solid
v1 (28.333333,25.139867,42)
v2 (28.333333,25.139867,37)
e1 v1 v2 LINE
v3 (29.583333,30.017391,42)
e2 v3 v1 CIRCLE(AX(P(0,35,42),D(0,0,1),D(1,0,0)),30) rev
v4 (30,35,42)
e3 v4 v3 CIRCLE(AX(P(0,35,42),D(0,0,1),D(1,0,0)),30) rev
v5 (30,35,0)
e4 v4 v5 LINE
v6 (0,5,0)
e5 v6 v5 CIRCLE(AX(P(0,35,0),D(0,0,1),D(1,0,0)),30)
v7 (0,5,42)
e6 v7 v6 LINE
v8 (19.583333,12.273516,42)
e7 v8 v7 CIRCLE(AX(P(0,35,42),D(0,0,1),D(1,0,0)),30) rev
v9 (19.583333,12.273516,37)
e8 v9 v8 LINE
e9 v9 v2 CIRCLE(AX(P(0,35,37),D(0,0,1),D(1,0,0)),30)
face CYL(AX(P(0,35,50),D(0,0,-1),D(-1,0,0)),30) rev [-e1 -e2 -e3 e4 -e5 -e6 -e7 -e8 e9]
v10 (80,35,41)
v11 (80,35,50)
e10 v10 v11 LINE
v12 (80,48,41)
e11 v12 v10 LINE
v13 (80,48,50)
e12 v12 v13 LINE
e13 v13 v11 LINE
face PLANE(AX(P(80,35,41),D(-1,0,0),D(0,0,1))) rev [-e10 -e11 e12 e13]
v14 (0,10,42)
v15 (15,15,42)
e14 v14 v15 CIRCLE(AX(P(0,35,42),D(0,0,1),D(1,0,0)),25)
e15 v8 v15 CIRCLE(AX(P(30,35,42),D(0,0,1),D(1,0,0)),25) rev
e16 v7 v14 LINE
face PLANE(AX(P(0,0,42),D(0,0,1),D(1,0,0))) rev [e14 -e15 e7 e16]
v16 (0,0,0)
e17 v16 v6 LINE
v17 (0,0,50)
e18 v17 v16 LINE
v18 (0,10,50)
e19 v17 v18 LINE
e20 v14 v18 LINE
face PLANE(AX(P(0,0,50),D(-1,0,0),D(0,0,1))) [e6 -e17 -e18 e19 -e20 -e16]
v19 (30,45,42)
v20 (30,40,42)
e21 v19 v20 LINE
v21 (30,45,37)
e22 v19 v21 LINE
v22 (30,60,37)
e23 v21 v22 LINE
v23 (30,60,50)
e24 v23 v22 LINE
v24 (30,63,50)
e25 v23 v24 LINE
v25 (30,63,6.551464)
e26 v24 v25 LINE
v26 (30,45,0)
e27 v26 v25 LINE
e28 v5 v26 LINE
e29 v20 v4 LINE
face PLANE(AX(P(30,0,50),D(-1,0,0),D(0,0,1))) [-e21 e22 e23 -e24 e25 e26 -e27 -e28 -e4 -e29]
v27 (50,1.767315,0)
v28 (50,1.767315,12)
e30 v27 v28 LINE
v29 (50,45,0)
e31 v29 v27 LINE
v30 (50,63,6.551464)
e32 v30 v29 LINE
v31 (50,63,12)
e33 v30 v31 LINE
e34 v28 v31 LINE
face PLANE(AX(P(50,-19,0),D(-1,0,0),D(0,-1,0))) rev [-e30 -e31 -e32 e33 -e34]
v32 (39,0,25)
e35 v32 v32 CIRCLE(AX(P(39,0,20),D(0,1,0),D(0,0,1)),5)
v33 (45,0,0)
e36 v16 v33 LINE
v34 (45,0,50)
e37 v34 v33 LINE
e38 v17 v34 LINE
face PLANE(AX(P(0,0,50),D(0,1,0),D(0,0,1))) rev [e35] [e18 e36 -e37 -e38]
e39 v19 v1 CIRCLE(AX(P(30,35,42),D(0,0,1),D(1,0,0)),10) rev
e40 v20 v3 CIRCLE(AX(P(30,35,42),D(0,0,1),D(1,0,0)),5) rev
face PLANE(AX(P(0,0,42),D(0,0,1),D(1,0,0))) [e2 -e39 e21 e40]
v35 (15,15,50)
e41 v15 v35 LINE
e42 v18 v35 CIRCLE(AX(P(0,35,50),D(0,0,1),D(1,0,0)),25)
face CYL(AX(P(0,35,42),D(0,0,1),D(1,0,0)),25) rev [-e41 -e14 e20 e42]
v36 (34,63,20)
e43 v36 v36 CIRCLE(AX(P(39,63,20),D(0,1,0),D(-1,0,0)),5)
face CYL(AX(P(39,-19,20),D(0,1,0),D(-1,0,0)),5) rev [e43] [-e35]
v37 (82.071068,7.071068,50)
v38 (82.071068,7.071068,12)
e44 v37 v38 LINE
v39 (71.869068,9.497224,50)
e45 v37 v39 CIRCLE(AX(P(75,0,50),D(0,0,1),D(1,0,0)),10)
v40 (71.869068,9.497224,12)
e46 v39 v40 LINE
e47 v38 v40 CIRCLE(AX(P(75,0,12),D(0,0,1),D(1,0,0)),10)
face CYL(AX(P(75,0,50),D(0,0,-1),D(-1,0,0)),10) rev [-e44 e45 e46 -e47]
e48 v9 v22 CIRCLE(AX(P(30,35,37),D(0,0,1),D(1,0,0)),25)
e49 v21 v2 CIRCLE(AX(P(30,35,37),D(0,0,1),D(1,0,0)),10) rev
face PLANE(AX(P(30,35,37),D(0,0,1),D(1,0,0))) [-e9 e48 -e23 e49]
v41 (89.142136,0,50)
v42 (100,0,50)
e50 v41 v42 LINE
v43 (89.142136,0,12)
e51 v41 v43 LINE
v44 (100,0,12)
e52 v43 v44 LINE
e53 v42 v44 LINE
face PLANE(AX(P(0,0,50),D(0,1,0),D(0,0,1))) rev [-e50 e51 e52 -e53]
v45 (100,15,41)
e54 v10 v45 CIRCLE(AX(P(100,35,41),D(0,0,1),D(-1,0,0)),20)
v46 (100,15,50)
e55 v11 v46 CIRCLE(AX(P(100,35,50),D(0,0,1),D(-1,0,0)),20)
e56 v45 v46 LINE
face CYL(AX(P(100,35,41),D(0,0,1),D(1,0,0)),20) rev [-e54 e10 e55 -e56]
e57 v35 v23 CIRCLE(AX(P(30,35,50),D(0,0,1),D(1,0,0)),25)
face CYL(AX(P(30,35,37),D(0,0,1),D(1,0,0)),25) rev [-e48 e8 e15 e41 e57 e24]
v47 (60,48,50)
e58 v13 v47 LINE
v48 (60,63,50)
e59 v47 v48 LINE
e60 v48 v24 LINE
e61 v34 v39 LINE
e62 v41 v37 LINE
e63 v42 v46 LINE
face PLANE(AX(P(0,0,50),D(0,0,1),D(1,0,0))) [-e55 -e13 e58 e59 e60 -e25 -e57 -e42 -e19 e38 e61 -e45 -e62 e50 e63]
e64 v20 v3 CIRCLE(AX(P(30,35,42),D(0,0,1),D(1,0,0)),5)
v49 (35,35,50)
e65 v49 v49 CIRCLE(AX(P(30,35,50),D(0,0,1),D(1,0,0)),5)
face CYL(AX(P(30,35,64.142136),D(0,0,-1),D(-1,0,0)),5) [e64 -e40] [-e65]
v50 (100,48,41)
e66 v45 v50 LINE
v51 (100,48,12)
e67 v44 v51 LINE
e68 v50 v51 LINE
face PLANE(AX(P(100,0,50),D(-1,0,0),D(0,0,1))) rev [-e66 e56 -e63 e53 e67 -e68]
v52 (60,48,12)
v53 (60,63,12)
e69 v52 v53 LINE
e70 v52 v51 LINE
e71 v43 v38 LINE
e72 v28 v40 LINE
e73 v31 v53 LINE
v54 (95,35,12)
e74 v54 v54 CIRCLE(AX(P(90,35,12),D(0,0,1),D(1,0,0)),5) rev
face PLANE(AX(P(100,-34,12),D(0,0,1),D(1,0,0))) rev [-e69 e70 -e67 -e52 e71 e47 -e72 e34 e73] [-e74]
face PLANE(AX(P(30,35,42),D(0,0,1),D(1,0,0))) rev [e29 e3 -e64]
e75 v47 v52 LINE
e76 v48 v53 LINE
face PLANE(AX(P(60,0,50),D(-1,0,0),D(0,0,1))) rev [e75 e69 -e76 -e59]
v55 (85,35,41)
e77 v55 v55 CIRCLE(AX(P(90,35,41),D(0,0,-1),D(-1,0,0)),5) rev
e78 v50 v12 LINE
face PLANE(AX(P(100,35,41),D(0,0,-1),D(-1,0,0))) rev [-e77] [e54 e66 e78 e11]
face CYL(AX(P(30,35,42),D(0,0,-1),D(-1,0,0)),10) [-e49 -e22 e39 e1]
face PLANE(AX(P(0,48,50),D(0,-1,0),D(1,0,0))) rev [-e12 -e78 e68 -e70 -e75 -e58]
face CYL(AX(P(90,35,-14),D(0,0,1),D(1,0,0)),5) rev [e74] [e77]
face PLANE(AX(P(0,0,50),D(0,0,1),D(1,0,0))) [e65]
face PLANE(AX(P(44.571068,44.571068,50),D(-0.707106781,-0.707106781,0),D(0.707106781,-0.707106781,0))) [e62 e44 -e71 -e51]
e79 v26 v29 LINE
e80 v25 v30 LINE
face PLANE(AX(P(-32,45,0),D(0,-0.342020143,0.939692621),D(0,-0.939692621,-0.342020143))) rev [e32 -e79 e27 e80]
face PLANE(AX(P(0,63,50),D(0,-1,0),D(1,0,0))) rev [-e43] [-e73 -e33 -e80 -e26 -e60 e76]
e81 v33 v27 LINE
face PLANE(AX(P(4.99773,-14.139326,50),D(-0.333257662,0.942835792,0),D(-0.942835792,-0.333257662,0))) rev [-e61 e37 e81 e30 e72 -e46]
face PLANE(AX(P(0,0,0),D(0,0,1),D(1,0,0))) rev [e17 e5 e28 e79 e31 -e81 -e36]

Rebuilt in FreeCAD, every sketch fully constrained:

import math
import FreeCAD as App
import Part
import Sketcher

V = App.Vector
Q = App.Units.Quantity


def add_polygon(sketch, points):
    """Adds a closed chain of lines whose ends are joined by coincident constraints."""
    first, n = sketch.GeometryCount, len(points)
    for a, b in zip(points, points[1:] + points[:1]):
        sketch.addGeometry(Part.LineSegment(App.Vector(*a, 0), App.Vector(*b, 0)), False)
    for i in range(n):
        sketch.addConstraint(Sketcher.Constraint("Coincident", first + i, 2, first + (i + 1) % n, 1))

doc = App.newDocument("Part")
body = doc.addObject("PartDesign::Body", "Body")

# Sketch on XY plane
sketch1 = body.newObject("Sketcher::SketchObject", "Sketch")
sketch1.AttachmentSupport = (doc.getObject("XY_Plane"), [""])
sketch1.MapMode = "FlatFace"
sketch1.addGeometry([
    Part.LineSegment(V(0, 5, 0), V(0, 0, 0)),  # 0
    Part.LineSegment(V(0, 0, 0), V(45, 0, 0)),  # 1
    Part.LineSegment(V(45, 0, 0), V(71.869068, 9.497224, 0)),  # 2
    Part.ArcOfCircle(Part.Circle(V(75, 0, 0), V(0, 0, 1), 10), math.radians(45), math.radians(108.245741)),  # 3
    Part.LineSegment(V(82.071068, 7.071068, 0), V(89.142136, 0, 0)),  # 4
    Part.LineSegment(V(89.142136, 0, 0), V(100, 0, 0)),  # 5
    Part.LineSegment(V(100, 0, 0), V(100, 48, 0)),  # 6
    Part.LineSegment(V(100, 48, 0), V(60, 48, 0)),  # 7
    Part.LineSegment(V(60, 48, 0), V(60, 63, 0)),  # 8
    Part.LineSegment(V(60, 63, 0), V(30, 63, 0)),  # 9
    Part.LineSegment(V(30, 63, 0), V(30, 35, 0)),  # 10
    Part.ArcOfCircle(Part.Circle(V(0, 35, 0), V(0, 0, 1), 30), math.radians(-90), math.radians(0)),  # 11
], False)
sketch1.addConstraint([
    Sketcher.Constraint("Coincident", 0, 2, 1, 1),
    Sketcher.Constraint("Coincident", 1, 2, 2, 1),
    Sketcher.Constraint("Coincident", 2, 2, 3, 2),
    Sketcher.Constraint("Tangent", 3, 1, 4, 1),
    Sketcher.Constraint("Coincident", 4, 2, 5, 1),
    Sketcher.Constraint("Coincident", 5, 2, 6, 1),
    Sketcher.Constraint("Coincident", 6, 2, 7, 1),
    Sketcher.Constraint("Coincident", 7, 2, 8, 1),
    Sketcher.Constraint("Coincident", 8, 2, 9, 1),
    Sketcher.Constraint("Coincident", 9, 2, 10, 1),
    Sketcher.Constraint("Tangent", 10, 2, 11, 2),
    Sketcher.Constraint("Coincident", 11, 1, 0, 1),
    Sketcher.Constraint("Vertical", 0),
    Sketcher.Constraint("Horizontal", 1),
    Sketcher.Constraint("Horizontal", 5),
    Sketcher.Constraint("Vertical", 6),
    Sketcher.Constraint("Horizontal", 7),
    Sketcher.Constraint("Vertical", 8),
    Sketcher.Constraint("Horizontal", 9),
    Sketcher.Constraint("Vertical", 10),
    Sketcher.Constraint("Coincident", 0, 2, -1, 1),
    Sketcher.Constraint("PointOnObject", 3, 3, -1),
    Sketcher.Constraint("PointOnObject", 11, 3, -2),
    Sketcher.Constraint("PointOnObject", 4, 2, -1),
    Sketcher.Constraint("Radius", 3, 10.0),
    Sketcher.Constraint("Radius", 11, 30.0),
    Sketcher.Constraint("DistanceX", 1, 1, 1, 2, 45.0),
    Sketcher.Constraint("DistanceX", 7, 2, 7, 1, 40.0),
    Sketcher.Constraint("DistanceX", 9, 2, 9, 1, 30.0),
    Sketcher.Constraint("DistanceY", 0, 2, 0, 1, 5.0),
    Sketcher.Constraint("DistanceY", 6, 1, 6, 2, 48.0),
    Sketcher.Constraint("DistanceY", 8, 1, 8, 2, 15.0),
    Sketcher.Constraint("Angle", 4, Q("-45 deg")),
    Sketcher.Constraint("DistanceX", -1, 1, 3, 3, 75.0),
    Sketcher.Constraint("DistanceX", 2, 2, 3, 1, 10.202),
])
pad1 = body.newObject("PartDesign::Pad", "Pad")
pad1.Profile = sketch1
pad1.Length = 50

# Sketch on XY plane
sketch2 = body.newObject("Sketcher::SketchObject", "Sketch001")
sketch2.AttachmentSupport = (doc.getObject("XY_Plane"), [""])
sketch2.MapMode = "FlatFace"
sketch2.AttachmentOffset = App.Placement(V(0, 0, 50), App.Rotation())
sketch2.addGeometry(Part.Circle(V(90, 35, 0), V(0, 0, 1), 5), False)
sketch2.addConstraint([
    Sketcher.Constraint("Diameter", 0, 10.0),
    Sketcher.Constraint("DistanceX", -1, 1, 0, 3, 90.0),
    Sketcher.Constraint("DistanceY", -1, 1, 0, 3, 35.0),
])
pocket1 = body.newObject("PartDesign::Pocket", "Pocket")
pocket1.Profile = sketch2
pocket1.Length = 64

# Sketch on XY plane
sketch3 = body.newObject("Sketcher::SketchObject", "Sketch002")
sketch3.AttachmentSupport = (doc.getObject("XY_Plane"), [""])
sketch3.MapMode = "FlatFace"
sketch3.AttachmentOffset = App.Placement(V(0, 0, 50), App.Rotation())
sketch3.addGeometry([
    Part.LineSegment(V(100, 48, 0), V(80, 48, 0)),
    Part.LineSegment(V(80, 48, 0), V(80, 35, 0)),
    Part.ArcOfCircle(Part.Circle(V(100, 35, 0), V(0, 0, 1), 20), math.radians(180), math.radians(270)),
    Part.LineSegment(V(100, 15, 0), V(100, 48, 0)),
], False)
sketch3.addConstraint([
    Sketcher.Constraint("Coincident", 0, 2, 1, 1),
    Sketcher.Constraint("Tangent", 1, 2, 2, 1),
    Sketcher.Constraint("Coincident", 2, 2, 3, 1),
    Sketcher.Constraint("Coincident", 3, 2, 0, 1),
    Sketcher.Constraint("Horizontal", 0),
    Sketcher.Constraint("Vertical", 1),
    Sketcher.Constraint("Vertical", 3),
    Sketcher.Constraint("Radius", 2, 20.0),
    Sketcher.Constraint("DistanceX", 0, 2, 0, 1, 20.0),
    Sketcher.Constraint("DistanceY", 1, 2, 1, 1, 13.0),
    Sketcher.Constraint("DistanceX", -1, 1, 2, 3, 100.0),
    Sketcher.Constraint("DistanceY", -1, 1, 2, 3, 35.0),
])
pocket2 = body.newObject("PartDesign::Pocket", "Pocket001")
pocket2.Profile = sketch3
pocket2.Length = 9

# Sketch on XZ plane
sketch4 = body.newObject("Sketcher::SketchObject", "Sketch003")
sketch4.AttachmentSupport = (doc.getObject("XZ_Plane"), [""])
sketch4.MapMode = "FlatFace"
sketch4.AttachmentOffset = App.Placement(V(0, 0, -63), App.Rotation())
sketch4.addGeometry(Part.Circle(V(39, 20, 0), V(0, 0, 1), 5), False)
sketch4.addConstraint([
    Sketcher.Constraint("Diameter", 0, 10.0),
    Sketcher.Constraint("DistanceX", -1, 1, 0, 3, 39.0),
    Sketcher.Constraint("DistanceY", -1, 1, 0, 3, 20.0),
])
pocket3 = body.newObject("PartDesign::Pocket", "Pocket002")
pocket3.Profile = sketch4
pocket3.Length = 82
pocket3.Reversed = True

# Sketch on XZ plane
sketch5 = body.newObject("Sketcher::SketchObject", "Sketch004")
sketch5.AttachmentSupport = (doc.getObject("XZ_Plane"), [""])
sketch5.MapMode = "FlatFace"
sketch5.AttachmentOffset = App.Placement(V(0, 0, -48), App.Rotation())
add_polygon(sketch5, [(60, 0), (60, 12), (100, 12), (100, 0)])  # lines 0-3
sketch5.addConstraint([
    Sketcher.Constraint("Vertical", 0),
    Sketcher.Constraint("Horizontal", 1),
    Sketcher.Constraint("Vertical", 2),
    Sketcher.Constraint("Horizontal", 3),
    Sketcher.Constraint("PointOnObject", 2, 2, -1),
    Sketcher.Constraint("DistanceX", 1, 1, 1, 2, 40.0),
    Sketcher.Constraint("DistanceY", 0, 1, 0, 2, 12.0),
    Sketcher.Constraint("DistanceX", -1, 1, 0, 2, 60.0),
])
pocket4 = body.newObject("PartDesign::Pocket", "Pocket003")
pocket4.Profile = sketch5
pocket4.Length = 82
pocket4.Reversed = True

# Sketch on XZ plane
sketch6 = body.newObject("Sketcher::SketchObject", "Sketch005")
sketch6.AttachmentSupport = (doc.getObject("XZ_Plane"), [""])
sketch6.MapMode = "FlatFace"
sketch6.AttachmentOffset = App.Placement(V(0, 0, -63), App.Rotation())
add_polygon(sketch6, [(50, 0), (50, 12), (60, 12), (60, 0)])  # lines 0-3
sketch6.addConstraint([
    Sketcher.Constraint("Vertical", 0),
    Sketcher.Constraint("Horizontal", 1),
    Sketcher.Constraint("Vertical", 2),
    Sketcher.Constraint("Horizontal", 3),
    Sketcher.Constraint("PointOnObject", 2, 2, -1),
    Sketcher.Constraint("DistanceX", 1, 1, 1, 2, 10.0),
    Sketcher.Constraint("DistanceY", 0, 1, 0, 2, 12.0),
    Sketcher.Constraint("DistanceX", -1, 1, 0, 2, 50.0),
])
pocket5 = body.newObject("PartDesign::Pocket", "Pocket004")
pocket5.Profile = sketch6
pocket5.Length = 82
pocket5.Reversed = True

# Sketch on YZ plane
sketch7 = body.newObject("Sketcher::SketchObject", "Sketch006")
sketch7.AttachmentSupport = (doc.getObject("YZ_Plane"), [""])
sketch7.MapMode = "FlatFace"
sketch7.AttachmentOffset = App.Placement(V(0, 0, 50), App.Rotation())
add_polygon(sketch7, [(45, 0), (63, 0), (63, 6.551464)])  # lines 0-2
sketch7.addConstraint([
    Sketcher.Constraint("Horizontal", 0),
    Sketcher.Constraint("Vertical", 1),
    Sketcher.Constraint("PointOnObject", 0, 2, -1),
    Sketcher.Constraint("DistanceX", 0, 1, 0, 2, 18.0),
    Sketcher.Constraint("Angle", 2, Q("-160 deg")),
    Sketcher.Constraint("DistanceX", -1, 1, 0, 2, 63.0),
])
pocket6 = body.newObject("PartDesign::Pocket", "Pocket005")
pocket6.Profile = sketch7
pocket6.Length = 82

# Sketch on XY plane
sketch8 = body.newObject("Sketcher::SketchObject", "Sketch007")
sketch8.AttachmentSupport = (doc.getObject("XY_Plane"), [""])
sketch8.MapMode = "FlatFace"
sketch8.AttachmentOffset = App.Placement(V(0, 0, 50), App.Rotation())
sketch8.addGeometry(Part.Circle(V(30, 35, 0), V(0, 0, 1), 25), False)
sketch8.addConstraint([
    Sketcher.Constraint("Diameter", 0, 50.0),
    Sketcher.Constraint("DistanceX", -1, 1, 0, 3, 30.0),
    Sketcher.Constraint("DistanceY", -1, 1, 0, 3, 35.0),
])
pocket7 = body.newObject("PartDesign::Pocket", "Pocket006")
pocket7.Profile = sketch8
pocket7.Length = 13

# Sketch on XY plane
sketch9 = body.newObject("Sketcher::SketchObject", "Sketch008")
sketch9.AttachmentSupport = (doc.getObject("XY_Plane"), [""])
sketch9.MapMode = "FlatFace"
sketch9.AttachmentOffset = App.Placement(V(0, 0, 50), App.Rotation())
sketch9.addGeometry([
    Part.ArcOfCircle(Part.Circle(V(30, 35, 0), V(0, 0, 1), 25), math.radians(-126.869898), math.radians(-114.624318)),
    Part.ArcOfCircle(Part.Circle(V(0, 35, 0), V(0, 0, 1), 25), math.radians(-90), math.radians(-53.130102)),
    Part.LineSegment(V(0, 10, 0), V(0, 5, 0)),
    Part.ArcOfCircle(Part.Circle(V(0, 35, 0), V(0, 0, 1), 30), math.radians(-90), math.radians(-49.248637)),
], False)
sketch9.addConstraint([
    Sketcher.Constraint("Coincident", 0, 1, 1, 2),
    Sketcher.Constraint("Coincident", 1, 1, 2, 1),
    Sketcher.Constraint("Coincident", 2, 2, 3, 1),
    Sketcher.Constraint("Coincident", 3, 2, 0, 2),
    Sketcher.Constraint("Vertical", 2),
    Sketcher.Constraint("Coincident", 3, 3, 1, 3),
    Sketcher.Constraint("Equal", 0, 1),
    Sketcher.Constraint("PointOnObject", 1, 3, -2),
    Sketcher.Constraint("PointOnObject", 1, 1, -2),
    Sketcher.Constraint("Horizontal", 0, 3, 1, 3),
    Sketcher.Constraint("Radius", 0, 25.0),
    Sketcher.Constraint("Radius", 3, 30.0),
    Sketcher.Constraint("DistanceX", -1, 1, 0, 3, 30.0),
    Sketcher.Constraint("DistanceY", -1, 1, 0, 3, 35.0),
])
pad2 = body.newObject("PartDesign::Pad", "Pad001")
pad2.Profile = sketch9
pad2.Length = 8
pad2.Reversed = True

# Sketch on XY plane
sketch10 = body.newObject("Sketcher::SketchObject", "Sketch009")
sketch10.AttachmentSupport = (doc.getObject("XY_Plane"), [""])
sketch10.MapMode = "FlatFace"
sketch10.AttachmentOffset = App.Placement(V(0, 0, 37), App.Rotation())
sketch10.addGeometry([
    Part.ArcOfCircle(Part.Circle(V(30, 35, 0), V(0, 0, 1), 10), math.radians(-99.594068), math.radians(90)),
    Part.LineSegment(V(30, 45, 0), V(30, 35, 0)),
    Part.ArcOfCircle(Part.Circle(V(0, 35, 0), V(0, 0, 1), 30), math.radians(-19.188136), math.radians(0)),
], False)
sketch10.addConstraint([
    Sketcher.Constraint("Coincident", 0, 2, 1, 1),
    Sketcher.Constraint("Tangent", 1, 2, 2, 2),
    Sketcher.Constraint("Coincident", 2, 1, 0, 1),
    Sketcher.Constraint("Vertical", 1),
    Sketcher.Constraint("Coincident", 1, 2, 0, 3),
    Sketcher.Constraint("PointOnObject", 2, 3, -2),
    Sketcher.Constraint("Radius", 0, 10.0),
    Sketcher.Constraint("Radius", 2, 30.0),
    Sketcher.Constraint("DistanceY", -1, 1, 0, 3, 35.0),
])
pad3 = body.newObject("PartDesign::Pad", "Pad002")
pad3.Profile = sketch10
pad3.Length = 5

# Sketch on XY plane
sketch11 = body.newObject("Sketcher::SketchObject", "Sketch010")
sketch11.AttachmentSupport = (doc.getObject("XY_Plane"), [""])
sketch11.MapMode = "FlatFace"
sketch11.AttachmentOffset = App.Placement(V(0, 0, 42), App.Rotation())
sketch11.addGeometry(Part.Circle(V(30, 35, 0), V(0, 0, 1), 5), False)
sketch11.addConstraint([
    Sketcher.Constraint("Diameter", 0, 10.0),
    Sketcher.Constraint("DistanceX", -1, 1, 0, 3, 30.0),
    Sketcher.Constraint("DistanceY", -1, 1, 0, 3, 35.0),
])
pad4 = body.newObject("PartDesign::Pad", "Pad003")
pad4.Profile = sketch11
pad4.Length = 8

doc.recompute()
